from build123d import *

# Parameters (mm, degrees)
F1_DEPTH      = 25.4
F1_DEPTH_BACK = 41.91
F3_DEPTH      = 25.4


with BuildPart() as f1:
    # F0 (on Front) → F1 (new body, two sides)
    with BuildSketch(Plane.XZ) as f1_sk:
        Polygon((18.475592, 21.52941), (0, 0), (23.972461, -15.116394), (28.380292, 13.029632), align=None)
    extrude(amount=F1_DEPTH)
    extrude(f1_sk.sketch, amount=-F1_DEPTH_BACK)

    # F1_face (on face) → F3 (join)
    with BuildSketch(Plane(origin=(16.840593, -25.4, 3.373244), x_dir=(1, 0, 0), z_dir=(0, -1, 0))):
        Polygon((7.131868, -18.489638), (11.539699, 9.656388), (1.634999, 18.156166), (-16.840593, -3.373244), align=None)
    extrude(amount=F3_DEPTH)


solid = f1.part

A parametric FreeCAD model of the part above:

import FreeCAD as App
import Part
import Sketcher

V = App.Vector
Q = App.Units.Quantity

doc = App.newDocument("Part")
body = doc.addObject("PartDesign::Body", "Body")

sketch1 = doc.addObject("Sketcher::SketchObject", "Sketch")
body.addObject(sketch1)
sketch1.AttachmentSupport = (doc.XZ_Plane, [""])
sketch1.MapMode = "FlatFace"
sketch1.addGeometry(Part.LineSegment(V(18, 22, 0), V(0, 0, 0)), False)
sketch1.addGeometry(Part.LineSegment(V(0, 0, 0), V(24, -15, 0)), False)
sketch1.addGeometry(Part.LineSegment(V(24, -15, 0), V(28, 13, 0)), False)
sketch1.addGeometry(Part.LineSegment(V(28, 13, 0), V(18, 22, 0)), False)
sketch1.addConstraint(Sketcher.Constraint("Coincident", 0, 2, 1, 1))
sketch1.addConstraint(Sketcher.Constraint("Coincident", 1, 2, 2, 1))
sketch1.addConstraint(Sketcher.Constraint("Coincident", 2, 2, 3, 1))
sketch1.addConstraint(Sketcher.Constraint("Coincident", 3, 2, 0, 1))
sketch1.addConstraint(Sketcher.Constraint("Coincident", 0, 2, -1, 1))
sketch1.addConstraint(Sketcher.Constraint("Perpendicular", 0, 3))
sketch1.addConstraint(Sketcher.Constraint("DistanceX", 3, 2, 2, 2, Q("9.9047 mm")))
sketch1.addConstraint(Sketcher.Constraint("Distance", 2, Q("28.489081 mm")))
sketch1.addConstraint(Sketcher.Constraint("DistanceX", -1, 1, 1, 2, Q("23.972461 mm")))
sketch1.addConstraint(Sketcher.Constraint("DistanceX", -1, 1, 3, 2, Q("18.475592 mm")))
sketch1.addConstraint(Sketcher.Constraint("DistanceY", -1, 1, 3, 2, Q("21.52941 mm")))
pad1 = doc.addObject("PartDesign::Pad", "Pad")
body.addObject(pad1)
pad1.Profile = sketch1
pad1.Type = "TwoLengths"
pad1.Length = Q("1 in")
pad1.Length2 = Q("1.65 in")

sketch2 = doc.addObject("Sketcher::SketchObject", "Sketch001")
body.addObject(sketch2)
sketch2.AttachmentSupport = (doc.XZ_Plane, [""])
sketch2.MapMode = "FlatFace"
sketch2.AttachmentOffset = App.Placement(V(0, 0, 1 * 25.4), App.Rotation())
sketch2.addGeometry(Part.LineSegment(V(24, -15, 0), V(28, 13, 0)), False)
sketch2.addGeometry(Part.LineSegment(V(28, 13, 0), V(18, 22, 0)), False)
sketch2.addGeometry(Part.LineSegment(V(18, 22, 0), V(0, 0, 0)), False)
sketch2.addGeometry(Part.LineSegment(V(0, 0, 0), V(24, -15, 0)), False)
sketch2.addConstraint(Sketcher.Constraint("Coincident", 0, 2, 1, 1))
sketch2.addConstraint(Sketcher.Constraint("Coincident", 1, 2, 2, 1))
sketch2.addConstraint(Sketcher.Constraint("Coincident", 2, 2, 3, 1))
sketch2.addConstraint(Sketcher.Constraint("Coincident", 3, 2, 0, 1))
sketch2.addConstraint(Sketcher.Constraint("Coincident", 2, 2, -1, 1))
sketch2.addConstraint(Sketcher.Constraint("Perpendicular", 1, 2))
sketch2.addConstraint(Sketcher.Constraint("DistanceX", 1, 2, 0, 2, Q("9.9047 mm")))
sketch2.addConstraint(Sketcher.Constraint("Distance", 0, Q("28.489081 mm")))
sketch2.addConstraint(Sketcher.Constraint("DistanceX", -1, 1, 1, 2, Q("18.475592 mm")))
sketch2.addConstraint(Sketcher.Constraint("DistanceY", -1, 1, 1, 2, Q("21.52941 mm")))
sketch2.addConstraint(Sketcher.Constraint("DistanceX", -1, 1, 3, 2, Q("23.972461 mm")))
pad2 = doc.addObject("PartDesign::Pad", "Pad001")
body.addObject(pad2)
pad2.Profile = sketch2
pad2.Length = Q("1 in")

doc.recompute()
